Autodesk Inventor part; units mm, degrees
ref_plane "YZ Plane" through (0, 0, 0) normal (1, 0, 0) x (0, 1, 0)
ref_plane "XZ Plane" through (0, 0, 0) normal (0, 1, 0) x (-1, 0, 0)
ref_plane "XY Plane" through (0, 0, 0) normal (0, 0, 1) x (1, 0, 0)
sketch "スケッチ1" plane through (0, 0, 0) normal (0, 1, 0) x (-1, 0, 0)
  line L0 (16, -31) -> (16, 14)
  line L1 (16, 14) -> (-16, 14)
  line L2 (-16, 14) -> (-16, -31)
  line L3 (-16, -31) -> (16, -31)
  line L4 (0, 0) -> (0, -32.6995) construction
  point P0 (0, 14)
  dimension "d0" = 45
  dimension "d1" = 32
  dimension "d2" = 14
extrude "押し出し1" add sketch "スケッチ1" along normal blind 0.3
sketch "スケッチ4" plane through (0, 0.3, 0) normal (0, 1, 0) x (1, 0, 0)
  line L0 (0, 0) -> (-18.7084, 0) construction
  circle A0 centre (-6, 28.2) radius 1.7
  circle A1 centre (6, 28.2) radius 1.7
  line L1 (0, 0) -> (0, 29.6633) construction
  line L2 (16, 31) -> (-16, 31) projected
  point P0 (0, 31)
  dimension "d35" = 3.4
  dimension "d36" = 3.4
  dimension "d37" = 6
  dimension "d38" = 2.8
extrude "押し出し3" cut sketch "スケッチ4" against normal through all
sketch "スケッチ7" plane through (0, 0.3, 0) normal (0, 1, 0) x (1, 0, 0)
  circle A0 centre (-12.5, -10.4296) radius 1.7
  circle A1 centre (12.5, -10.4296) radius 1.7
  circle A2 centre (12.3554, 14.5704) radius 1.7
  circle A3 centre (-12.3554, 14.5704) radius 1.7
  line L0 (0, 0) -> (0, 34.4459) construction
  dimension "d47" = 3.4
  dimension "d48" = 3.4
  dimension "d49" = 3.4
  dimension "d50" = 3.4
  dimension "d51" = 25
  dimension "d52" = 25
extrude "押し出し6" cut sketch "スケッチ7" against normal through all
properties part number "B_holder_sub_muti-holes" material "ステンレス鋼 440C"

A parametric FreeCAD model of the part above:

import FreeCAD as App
import Part
import Sketcher


def add_polygon(sketch, points):
    """Adds a closed chain of lines whose ends are joined by coincident constraints."""
    first, n = sketch.GeometryCount, len(points)
    for a, b in zip(points, points[1:] + points[:1]):
        sketch.addGeometry(Part.LineSegment(App.Vector(*a, 0), App.Vector(*b, 0)), False)
    for i in range(n):
        sketch.addConstraint(Sketcher.Constraint("Coincident", first + i, 2, first + (i + 1) % n, 1))

doc = App.newDocument("Part")
body = doc.addObject("PartDesign::Body", "Body")

# Sketch on XZ plane
sketch1 = body.newObject("Sketcher::SketchObject", "Sketch")
sketch1.AttachmentSupport = (doc.getObject("XZ_Plane"), [""])
sketch1.MapMode = "FlatFace"
add_polygon(sketch1, [(16, -31), (-16, -31), (-16, 14), (16, 14)])  # lines 0-3
sketch1.addConstraint(Sketcher.Constraint("Horizontal", 0))
sketch1.addConstraint(Sketcher.Constraint("Vertical", 1))
sketch1.addConstraint(Sketcher.Constraint("Horizontal", 2))
sketch1.addConstraint(Sketcher.Constraint("Vertical", 3))
sketch1.addConstraint(Sketcher.Constraint("DistanceX", 0, 2, 0, 1, 32.0))
sketch1.addConstraint(Sketcher.Constraint("DistanceY", 1, 1, 1, 2, 45.0))
sketch1.addConstraint(Sketcher.Constraint("DistanceY", -1, 1, 1, 2, 14.0))
sketch1.addConstraint(Sketcher.Constraint("DistanceX", 0, 2, -1, 1, 16.0))
pad1 = body.newObject("PartDesign::Pad", "Pad")
pad1.Profile = sketch1
pad1.Length = 0.3
pad1.Reversed = True

# Sketch on XZ plane
sketch2 = body.newObject("Sketcher::SketchObject", "Sketch001")
sketch2.AttachmentSupport = (doc.getObject("XZ_Plane"), [""])
sketch2.MapMode = "FlatFace"
sketch2.AttachmentOffset = App.Placement(App.Vector(0, 0, -0.3), App.Rotation())
sketch2.addGeometry(Part.Circle(App.Vector(-6, -28.2, 0), App.Vector(0, 0, 1), 1.7), False)
sketch2.addGeometry(Part.Circle(App.Vector(6, -28.2, 0), App.Vector(0, 0, 1), 1.7), False)
sketch2.addConstraint(Sketcher.Constraint("Equal", 0, 1))
sketch2.addConstraint(Sketcher.Constraint("Symmetric", 0, 3, 1, 3, -2))
sketch2.addConstraint(Sketcher.Constraint("Diameter", 0, 3.4))
sketch2.addConstraint(Sketcher.Constraint("DistanceX", 0, 3, -1, 1, 6.0))
sketch2.addConstraint(Sketcher.Constraint("DistanceY", 0, 3, -1, 1, 28.2))
pocket1 = body.newObject("PartDesign::Pocket", "Pocket")
pocket1.Profile = sketch2
pocket1.Type = "ThroughAll"
pocket1.Reversed = True

# Sketch on XZ plane
sketch3 = body.newObject("Sketcher::SketchObject", "Sketch002")
sketch3.AttachmentSupport = (doc.getObject("XZ_Plane"), [""])
sketch3.MapMode = "FlatFace"
sketch3.AttachmentOffset = App.Placement(App.Vector(0, 0, -0.3), App.Rotation())
sketch3.addGeometry(Part.Circle(App.Vector(-12.5, 10.4296, 0), App.Vector(0, 0, 1), 1.7), False)
sketch3.addGeometry(Part.Circle(App.Vector(12.5, 10.4296, 0), App.Vector(0, 0, 1), 1.7), False)
sketch3.addGeometry(Part.Circle(App.Vector(12.3554, -14.5704, 0), App.Vector(0, 0, 1), 1.7), False)
sketch3.addGeometry(Part.Circle(App.Vector(-12.3554, -14.5704, 0), App.Vector(0, 0, 1), 1.7), False)
sketch3.addConstraint(Sketcher.Constraint("Equal", 0, 1))
sketch3.addConstraint(Sketcher.Constraint("Equal", 1, 2))
sketch3.addConstraint(Sketcher.Constraint("Equal", 2, 3))
sketch3.addConstraint(Sketcher.Constraint("Symmetric", 0, 3, 1, 3, -2))
sketch3.addConstraint(Sketcher.Constraint("Symmetric", 2, 3, 3, 3, -2))
sketch3.addConstraint(Sketcher.Constraint("Diameter", 0, 3.4))
sketch3.addConstraint(Sketcher.Constraint("DistanceX", 0, 3, 1, 3, 25.0))
sketch3.addConstraint(Sketcher.Constraint("DistanceY", 2, 3, 1, 3, 25.0))
sketch3.addConstraint(Sketcher.Constraint("DistanceY", -1, 1, 0, 3, 10.4296))
sketch3.addConstraint(Sketcher.Constraint("DistanceX", -1, 1, 2, 3, 12.3554))
pocket2 = body.newObject("PartDesign::Pocket", "Pocket001")
pocket2.Profile = sketch3
pocket2.Type = "ThroughAll"
pocket2.Reversed = True

doc.recompute()
